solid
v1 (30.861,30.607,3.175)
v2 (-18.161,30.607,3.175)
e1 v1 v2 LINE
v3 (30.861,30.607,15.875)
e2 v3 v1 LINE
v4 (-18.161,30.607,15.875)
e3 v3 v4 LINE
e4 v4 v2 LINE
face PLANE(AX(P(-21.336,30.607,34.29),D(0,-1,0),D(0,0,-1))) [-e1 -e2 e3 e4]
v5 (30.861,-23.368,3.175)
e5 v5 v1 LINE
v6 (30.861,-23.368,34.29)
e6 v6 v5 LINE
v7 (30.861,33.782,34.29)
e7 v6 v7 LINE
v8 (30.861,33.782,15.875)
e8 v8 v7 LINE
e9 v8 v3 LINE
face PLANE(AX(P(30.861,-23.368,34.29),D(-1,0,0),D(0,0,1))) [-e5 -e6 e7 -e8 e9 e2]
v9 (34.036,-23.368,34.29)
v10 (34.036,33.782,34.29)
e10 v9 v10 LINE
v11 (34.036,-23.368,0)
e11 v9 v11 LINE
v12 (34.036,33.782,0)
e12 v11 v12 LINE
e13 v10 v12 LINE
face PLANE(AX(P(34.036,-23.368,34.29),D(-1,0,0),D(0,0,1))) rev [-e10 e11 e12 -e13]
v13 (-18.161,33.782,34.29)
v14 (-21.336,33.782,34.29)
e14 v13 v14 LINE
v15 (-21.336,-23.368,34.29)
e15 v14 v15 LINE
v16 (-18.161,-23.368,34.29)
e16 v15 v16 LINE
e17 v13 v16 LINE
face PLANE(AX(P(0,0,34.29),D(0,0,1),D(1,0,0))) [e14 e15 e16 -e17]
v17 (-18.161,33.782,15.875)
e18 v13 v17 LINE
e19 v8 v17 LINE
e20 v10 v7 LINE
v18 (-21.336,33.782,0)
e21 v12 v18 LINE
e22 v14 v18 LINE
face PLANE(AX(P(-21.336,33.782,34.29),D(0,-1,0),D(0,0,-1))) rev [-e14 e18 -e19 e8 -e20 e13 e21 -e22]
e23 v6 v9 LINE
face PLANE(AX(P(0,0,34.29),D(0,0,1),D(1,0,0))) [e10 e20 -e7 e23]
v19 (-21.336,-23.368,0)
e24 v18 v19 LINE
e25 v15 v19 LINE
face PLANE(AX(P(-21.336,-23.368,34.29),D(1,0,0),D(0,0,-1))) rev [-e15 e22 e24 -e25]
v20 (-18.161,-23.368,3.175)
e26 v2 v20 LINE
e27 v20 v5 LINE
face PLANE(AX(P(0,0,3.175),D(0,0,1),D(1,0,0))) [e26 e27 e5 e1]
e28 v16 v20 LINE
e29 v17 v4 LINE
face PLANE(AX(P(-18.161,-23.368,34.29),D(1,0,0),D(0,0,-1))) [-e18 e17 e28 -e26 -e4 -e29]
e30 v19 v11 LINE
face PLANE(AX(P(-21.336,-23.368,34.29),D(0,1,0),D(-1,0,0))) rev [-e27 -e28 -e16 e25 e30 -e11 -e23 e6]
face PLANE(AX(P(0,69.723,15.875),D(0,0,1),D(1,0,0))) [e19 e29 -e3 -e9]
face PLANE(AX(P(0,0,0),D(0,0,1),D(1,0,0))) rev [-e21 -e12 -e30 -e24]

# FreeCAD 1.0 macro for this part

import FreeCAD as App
import Part
import Sketcher
Q = App.Units.Quantity


def faces_at(feature, points):
    """Names of the faces that lie closest to the given points."""
    faces = feature.Shape.Faces
    near = lambda p: min(range(len(faces)), key=lambda i: faces[i].distToShape(Part.Vertex(*p))[0])
    return sorted({f"Face{near(p) + 1}" for p in points})


def add_polygon(sketch, points):
    """Adds a closed chain of lines whose ends are joined by coincident constraints."""
    first, n = sketch.GeometryCount, len(points)
    for a, b in zip(points, points[1:] + points[:1]):
        sketch.addGeometry(Part.LineSegment(App.Vector(*a, 0), App.Vector(*b, 0)), False)
    for i in range(n):
        sketch.addConstraint(Sketcher.Constraint("Coincident", first + i, 2, first + (i + 1) % n, 1))

doc = App.newDocument("Part")
params = doc.addObject("Spreadsheet::Sheet", "Params")
for row, (alias, value) in enumerate([
    ("sketch1_width", "2.18 in"),
    ("sketch1_height", "2.25 in"),
    ("pad1_length", "1.35 in"),
    ("thickness_wall", "0.125 in"),
    ("sketch2_width", "1.93 in"),
    ("sketch2_height", "0.725 in"),
    ("pocket1_length", "1.54 in"),
], start=1):
    params.set(f"A{row}", alias)
    params.set(f"B{row}", "=" + value)
    params.setAlias(f"B{row}", alias)

body = doc.addObject("PartDesign::Body", "Body")

# Sketch on XY plane
sketch1 = body.newObject("Sketcher::SketchObject", "Sketch")
sketch1.AttachmentSupport = (doc.getObject("XY_Plane"), [""])
sketch1.MapMode = "FlatFace"
add_polygon(sketch1, [(-21, 34), (-21, -23), (34, -23), (34, 34)])  # lines 0-3
sketch1.addConstraint([
    Sketcher.Constraint("Vertical", 0),
    Sketcher.Constraint("Horizontal", 1),
    Sketcher.Constraint("Vertical", 2),
    Sketcher.Constraint("Horizontal", 3),
    Sketcher.Constraint("DistanceX", 1, 1, 1, 2, Q("2.18 in")),
    Sketcher.Constraint("DistanceY", 0, 2, 0, 1, Q("2.25 in")),
    Sketcher.Constraint("DistanceX", 0, 2, -1, 1, Q("0.84 in")),
    Sketcher.Constraint("DistanceY", 0, 2, -1, 1, Q("0.92 in")),
])
sketch1.setExpression("Constraints[8]", "Params.sketch1_width")
sketch1.setExpression("Constraints[9]", "Params.sketch1_height")
pad1 = body.newObject("PartDesign::Pad", "Pad")
pad1.Profile = sketch1
pad1.setExpression("Length", "Params.pad1_length")
doc.recompute()

thickness = body.newObject("PartDesign::Thickness", "Thickness")
thickness.Base = (pad1, faces_at(pad1, [(6.35, 5.207, 34.29), (6.35, -23.368, 17.145)]))
thickness.setExpression("Value", "Params.thickness_wall")
thickness.Reversed = True
thickness.Join = "Intersection"

# Sketch on XZ plane
sketch2 = body.newObject("Sketcher::SketchObject", "Sketch001")
sketch2.AttachmentSupport = (doc.getObject("XZ_Plane"), [""])
sketch2.MapMode = "FlatFace"
sketch2.AttachmentOffset = App.Placement(App.Vector(0, 0, -1.205 * 25.4), App.Rotation())
add_polygon(sketch2, [(-18, 16), (31, 16), (31, 34), (-18, 34)])  # lines 0-3
sketch2.addConstraint([
    Sketcher.Constraint("Horizontal", 0),
    Sketcher.Constraint("Vertical", 1),
    Sketcher.Constraint("Horizontal", 2),
    Sketcher.Constraint("Vertical", 3),
    Sketcher.Constraint("DistanceX", 0, 1, 0, 2, Q("1.93 in")),
    Sketcher.Constraint("DistanceY", 1, 1, 1, 2, Q("0.725 in")),
    Sketcher.Constraint("DistanceY", -1, 1, 1, 2, Q("1.35 in")),
    Sketcher.Constraint("DistanceX", -1, 1, 0, 2, Q("1.215 in")),
])
sketch2.setExpression("Constraints[8]", "Params.sketch2_width")
sketch2.setExpression("Constraints[9]", "Params.sketch2_height")
pocket1 = body.newObject("PartDesign::Pocket", "Pocket")
pocket1.Profile = sketch2
pocket1.setExpression("Length", "Params.pocket1_length")

doc.recompute()
